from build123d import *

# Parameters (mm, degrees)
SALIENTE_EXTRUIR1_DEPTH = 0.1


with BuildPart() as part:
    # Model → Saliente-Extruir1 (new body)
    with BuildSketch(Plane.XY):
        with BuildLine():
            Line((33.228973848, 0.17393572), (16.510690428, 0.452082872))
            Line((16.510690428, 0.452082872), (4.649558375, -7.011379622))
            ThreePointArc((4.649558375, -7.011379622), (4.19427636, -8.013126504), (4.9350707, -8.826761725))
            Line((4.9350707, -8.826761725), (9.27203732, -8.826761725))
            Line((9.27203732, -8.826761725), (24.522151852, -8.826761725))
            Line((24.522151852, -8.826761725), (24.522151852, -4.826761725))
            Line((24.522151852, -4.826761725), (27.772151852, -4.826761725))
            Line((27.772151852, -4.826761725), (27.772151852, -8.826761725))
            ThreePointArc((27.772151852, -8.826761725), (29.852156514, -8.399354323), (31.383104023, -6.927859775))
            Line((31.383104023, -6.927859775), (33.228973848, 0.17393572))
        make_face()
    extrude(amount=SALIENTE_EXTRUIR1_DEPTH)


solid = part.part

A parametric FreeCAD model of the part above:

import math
import FreeCAD as App
import Part
import Sketcher

V = App.Vector
Q = App.Units.Quantity

doc = App.newDocument("Part")
body = doc.addObject("PartDesign::Body", "Body")

sketch1 = doc.addObject("Sketcher::SketchObject", "Sketch")
body.addObject(sketch1)
sketch1.AttachmentSupport = (doc.XY_Plane, [""])
sketch1.MapMode = "FlatFace"
sketch1.addGeometry([
    Part.LineSegment(V(33.2, 0.2, 0), V(16.5, 0.5, 0)),
    Part.LineSegment(V(16.5, 0.5, 0), V(4.6, -7, 0)),
    Part.ArcOfCircle(Part.Circle(V(5.2, -7.9, 0), V(0, 0, 1), 1), math.radians(122), math.radians(256)),
    Part.LineSegment(V(4.9, -8.8, 0), V(24.5, -8.8, 0)),
    Part.LineSegment(V(24.5, -8.8, 0), V(24.5, -4.8, 0)),
    Part.LineSegment(V(24.5, -4.8, 0), V(27.8, -4.8, 0)),
    Part.LineSegment(V(27.8, -4.8, 0), V(27.8, -8.8, 0)),
    Part.ArcOfCircle(Part.Circle(V(28.1, -5, 0), V(0, 0, 1), 3.8), math.radians(-95), math.radians(-30)),
    Part.LineSegment(V(31.4, -6.9, 0), V(33.2, 0.2, 0)),
], False)
sketch1.addConstraint([
    Sketcher.Constraint("Coincident", 0, 2, 1, 1),
    Sketcher.Constraint("Tangent", 1, 2, 2, 1),
    Sketcher.Constraint("Coincident", 2, 2, 3, 1),
    Sketcher.Constraint("Coincident", 3, 2, 4, 1),
    Sketcher.Constraint("Coincident", 4, 2, 5, 1),
    Sketcher.Constraint("Coincident", 5, 2, 6, 1),
    Sketcher.Constraint("Coincident", 6, 2, 7, 1),
    Sketcher.Constraint("Coincident", 7, 2, 8, 1),
    Sketcher.Constraint("Coincident", 8, 2, 0, 1),
    Sketcher.Constraint("Horizontal", 3),
    Sketcher.Constraint("Vertical", 4),
    Sketcher.Constraint("Horizontal", 5),
    Sketcher.Constraint("Vertical", 6),
    Sketcher.Constraint("Horizontal", 3, 2, 6, 2),
    Sketcher.Constraint("Radius", 2, Q("1 mm")),
    Sketcher.Constraint("DistanceY", 4, 1, 4, 2, Q("4 mm")),
    Sketcher.Constraint("DistanceX", 5, 1, 5, 2, Q("3.25 mm")),
    Sketcher.Constraint("Radius", 7, Q("3.822392 mm")),
    Sketcher.Constraint("DistanceY", 2, 2, 2, 3, Q("0.968999 mm")),
    Sketcher.Constraint("DistanceX", 3, 1, 3, 2, Q("19.587081 mm")),
    Sketcher.Constraint("DistanceY", 6, 2, 7, 2, Q("1.898902 mm")),
    Sketcher.Constraint("Distance", 1, Q("14.013912 mm")),
    Sketcher.Constraint("Distance", 8, Q("7.337761 mm")),
    Sketcher.Constraint("DistanceX", -1, 1, 0, 2, Q("16.51069 mm")),
    Sketcher.Constraint("DistanceX", -1, 1, 1, 2, Q("4.649558 mm")),
    Sketcher.Constraint("DistanceY", 1, 2, -1, 1, Q("7.01138 mm")),
    Sketcher.Constraint("DistanceX", 2, 3, 7, 3, Q("22.890931 mm")),
    Sketcher.Constraint("DistanceX", 7, 3, 8, 2, Q("5.155909 mm")),
])
pad1 = doc.addObject("PartDesign::Pad", "Pad")
body.addObject(pad1)
pad1.Profile = sketch1
pad1.Length = 0.1

doc.recompute()
